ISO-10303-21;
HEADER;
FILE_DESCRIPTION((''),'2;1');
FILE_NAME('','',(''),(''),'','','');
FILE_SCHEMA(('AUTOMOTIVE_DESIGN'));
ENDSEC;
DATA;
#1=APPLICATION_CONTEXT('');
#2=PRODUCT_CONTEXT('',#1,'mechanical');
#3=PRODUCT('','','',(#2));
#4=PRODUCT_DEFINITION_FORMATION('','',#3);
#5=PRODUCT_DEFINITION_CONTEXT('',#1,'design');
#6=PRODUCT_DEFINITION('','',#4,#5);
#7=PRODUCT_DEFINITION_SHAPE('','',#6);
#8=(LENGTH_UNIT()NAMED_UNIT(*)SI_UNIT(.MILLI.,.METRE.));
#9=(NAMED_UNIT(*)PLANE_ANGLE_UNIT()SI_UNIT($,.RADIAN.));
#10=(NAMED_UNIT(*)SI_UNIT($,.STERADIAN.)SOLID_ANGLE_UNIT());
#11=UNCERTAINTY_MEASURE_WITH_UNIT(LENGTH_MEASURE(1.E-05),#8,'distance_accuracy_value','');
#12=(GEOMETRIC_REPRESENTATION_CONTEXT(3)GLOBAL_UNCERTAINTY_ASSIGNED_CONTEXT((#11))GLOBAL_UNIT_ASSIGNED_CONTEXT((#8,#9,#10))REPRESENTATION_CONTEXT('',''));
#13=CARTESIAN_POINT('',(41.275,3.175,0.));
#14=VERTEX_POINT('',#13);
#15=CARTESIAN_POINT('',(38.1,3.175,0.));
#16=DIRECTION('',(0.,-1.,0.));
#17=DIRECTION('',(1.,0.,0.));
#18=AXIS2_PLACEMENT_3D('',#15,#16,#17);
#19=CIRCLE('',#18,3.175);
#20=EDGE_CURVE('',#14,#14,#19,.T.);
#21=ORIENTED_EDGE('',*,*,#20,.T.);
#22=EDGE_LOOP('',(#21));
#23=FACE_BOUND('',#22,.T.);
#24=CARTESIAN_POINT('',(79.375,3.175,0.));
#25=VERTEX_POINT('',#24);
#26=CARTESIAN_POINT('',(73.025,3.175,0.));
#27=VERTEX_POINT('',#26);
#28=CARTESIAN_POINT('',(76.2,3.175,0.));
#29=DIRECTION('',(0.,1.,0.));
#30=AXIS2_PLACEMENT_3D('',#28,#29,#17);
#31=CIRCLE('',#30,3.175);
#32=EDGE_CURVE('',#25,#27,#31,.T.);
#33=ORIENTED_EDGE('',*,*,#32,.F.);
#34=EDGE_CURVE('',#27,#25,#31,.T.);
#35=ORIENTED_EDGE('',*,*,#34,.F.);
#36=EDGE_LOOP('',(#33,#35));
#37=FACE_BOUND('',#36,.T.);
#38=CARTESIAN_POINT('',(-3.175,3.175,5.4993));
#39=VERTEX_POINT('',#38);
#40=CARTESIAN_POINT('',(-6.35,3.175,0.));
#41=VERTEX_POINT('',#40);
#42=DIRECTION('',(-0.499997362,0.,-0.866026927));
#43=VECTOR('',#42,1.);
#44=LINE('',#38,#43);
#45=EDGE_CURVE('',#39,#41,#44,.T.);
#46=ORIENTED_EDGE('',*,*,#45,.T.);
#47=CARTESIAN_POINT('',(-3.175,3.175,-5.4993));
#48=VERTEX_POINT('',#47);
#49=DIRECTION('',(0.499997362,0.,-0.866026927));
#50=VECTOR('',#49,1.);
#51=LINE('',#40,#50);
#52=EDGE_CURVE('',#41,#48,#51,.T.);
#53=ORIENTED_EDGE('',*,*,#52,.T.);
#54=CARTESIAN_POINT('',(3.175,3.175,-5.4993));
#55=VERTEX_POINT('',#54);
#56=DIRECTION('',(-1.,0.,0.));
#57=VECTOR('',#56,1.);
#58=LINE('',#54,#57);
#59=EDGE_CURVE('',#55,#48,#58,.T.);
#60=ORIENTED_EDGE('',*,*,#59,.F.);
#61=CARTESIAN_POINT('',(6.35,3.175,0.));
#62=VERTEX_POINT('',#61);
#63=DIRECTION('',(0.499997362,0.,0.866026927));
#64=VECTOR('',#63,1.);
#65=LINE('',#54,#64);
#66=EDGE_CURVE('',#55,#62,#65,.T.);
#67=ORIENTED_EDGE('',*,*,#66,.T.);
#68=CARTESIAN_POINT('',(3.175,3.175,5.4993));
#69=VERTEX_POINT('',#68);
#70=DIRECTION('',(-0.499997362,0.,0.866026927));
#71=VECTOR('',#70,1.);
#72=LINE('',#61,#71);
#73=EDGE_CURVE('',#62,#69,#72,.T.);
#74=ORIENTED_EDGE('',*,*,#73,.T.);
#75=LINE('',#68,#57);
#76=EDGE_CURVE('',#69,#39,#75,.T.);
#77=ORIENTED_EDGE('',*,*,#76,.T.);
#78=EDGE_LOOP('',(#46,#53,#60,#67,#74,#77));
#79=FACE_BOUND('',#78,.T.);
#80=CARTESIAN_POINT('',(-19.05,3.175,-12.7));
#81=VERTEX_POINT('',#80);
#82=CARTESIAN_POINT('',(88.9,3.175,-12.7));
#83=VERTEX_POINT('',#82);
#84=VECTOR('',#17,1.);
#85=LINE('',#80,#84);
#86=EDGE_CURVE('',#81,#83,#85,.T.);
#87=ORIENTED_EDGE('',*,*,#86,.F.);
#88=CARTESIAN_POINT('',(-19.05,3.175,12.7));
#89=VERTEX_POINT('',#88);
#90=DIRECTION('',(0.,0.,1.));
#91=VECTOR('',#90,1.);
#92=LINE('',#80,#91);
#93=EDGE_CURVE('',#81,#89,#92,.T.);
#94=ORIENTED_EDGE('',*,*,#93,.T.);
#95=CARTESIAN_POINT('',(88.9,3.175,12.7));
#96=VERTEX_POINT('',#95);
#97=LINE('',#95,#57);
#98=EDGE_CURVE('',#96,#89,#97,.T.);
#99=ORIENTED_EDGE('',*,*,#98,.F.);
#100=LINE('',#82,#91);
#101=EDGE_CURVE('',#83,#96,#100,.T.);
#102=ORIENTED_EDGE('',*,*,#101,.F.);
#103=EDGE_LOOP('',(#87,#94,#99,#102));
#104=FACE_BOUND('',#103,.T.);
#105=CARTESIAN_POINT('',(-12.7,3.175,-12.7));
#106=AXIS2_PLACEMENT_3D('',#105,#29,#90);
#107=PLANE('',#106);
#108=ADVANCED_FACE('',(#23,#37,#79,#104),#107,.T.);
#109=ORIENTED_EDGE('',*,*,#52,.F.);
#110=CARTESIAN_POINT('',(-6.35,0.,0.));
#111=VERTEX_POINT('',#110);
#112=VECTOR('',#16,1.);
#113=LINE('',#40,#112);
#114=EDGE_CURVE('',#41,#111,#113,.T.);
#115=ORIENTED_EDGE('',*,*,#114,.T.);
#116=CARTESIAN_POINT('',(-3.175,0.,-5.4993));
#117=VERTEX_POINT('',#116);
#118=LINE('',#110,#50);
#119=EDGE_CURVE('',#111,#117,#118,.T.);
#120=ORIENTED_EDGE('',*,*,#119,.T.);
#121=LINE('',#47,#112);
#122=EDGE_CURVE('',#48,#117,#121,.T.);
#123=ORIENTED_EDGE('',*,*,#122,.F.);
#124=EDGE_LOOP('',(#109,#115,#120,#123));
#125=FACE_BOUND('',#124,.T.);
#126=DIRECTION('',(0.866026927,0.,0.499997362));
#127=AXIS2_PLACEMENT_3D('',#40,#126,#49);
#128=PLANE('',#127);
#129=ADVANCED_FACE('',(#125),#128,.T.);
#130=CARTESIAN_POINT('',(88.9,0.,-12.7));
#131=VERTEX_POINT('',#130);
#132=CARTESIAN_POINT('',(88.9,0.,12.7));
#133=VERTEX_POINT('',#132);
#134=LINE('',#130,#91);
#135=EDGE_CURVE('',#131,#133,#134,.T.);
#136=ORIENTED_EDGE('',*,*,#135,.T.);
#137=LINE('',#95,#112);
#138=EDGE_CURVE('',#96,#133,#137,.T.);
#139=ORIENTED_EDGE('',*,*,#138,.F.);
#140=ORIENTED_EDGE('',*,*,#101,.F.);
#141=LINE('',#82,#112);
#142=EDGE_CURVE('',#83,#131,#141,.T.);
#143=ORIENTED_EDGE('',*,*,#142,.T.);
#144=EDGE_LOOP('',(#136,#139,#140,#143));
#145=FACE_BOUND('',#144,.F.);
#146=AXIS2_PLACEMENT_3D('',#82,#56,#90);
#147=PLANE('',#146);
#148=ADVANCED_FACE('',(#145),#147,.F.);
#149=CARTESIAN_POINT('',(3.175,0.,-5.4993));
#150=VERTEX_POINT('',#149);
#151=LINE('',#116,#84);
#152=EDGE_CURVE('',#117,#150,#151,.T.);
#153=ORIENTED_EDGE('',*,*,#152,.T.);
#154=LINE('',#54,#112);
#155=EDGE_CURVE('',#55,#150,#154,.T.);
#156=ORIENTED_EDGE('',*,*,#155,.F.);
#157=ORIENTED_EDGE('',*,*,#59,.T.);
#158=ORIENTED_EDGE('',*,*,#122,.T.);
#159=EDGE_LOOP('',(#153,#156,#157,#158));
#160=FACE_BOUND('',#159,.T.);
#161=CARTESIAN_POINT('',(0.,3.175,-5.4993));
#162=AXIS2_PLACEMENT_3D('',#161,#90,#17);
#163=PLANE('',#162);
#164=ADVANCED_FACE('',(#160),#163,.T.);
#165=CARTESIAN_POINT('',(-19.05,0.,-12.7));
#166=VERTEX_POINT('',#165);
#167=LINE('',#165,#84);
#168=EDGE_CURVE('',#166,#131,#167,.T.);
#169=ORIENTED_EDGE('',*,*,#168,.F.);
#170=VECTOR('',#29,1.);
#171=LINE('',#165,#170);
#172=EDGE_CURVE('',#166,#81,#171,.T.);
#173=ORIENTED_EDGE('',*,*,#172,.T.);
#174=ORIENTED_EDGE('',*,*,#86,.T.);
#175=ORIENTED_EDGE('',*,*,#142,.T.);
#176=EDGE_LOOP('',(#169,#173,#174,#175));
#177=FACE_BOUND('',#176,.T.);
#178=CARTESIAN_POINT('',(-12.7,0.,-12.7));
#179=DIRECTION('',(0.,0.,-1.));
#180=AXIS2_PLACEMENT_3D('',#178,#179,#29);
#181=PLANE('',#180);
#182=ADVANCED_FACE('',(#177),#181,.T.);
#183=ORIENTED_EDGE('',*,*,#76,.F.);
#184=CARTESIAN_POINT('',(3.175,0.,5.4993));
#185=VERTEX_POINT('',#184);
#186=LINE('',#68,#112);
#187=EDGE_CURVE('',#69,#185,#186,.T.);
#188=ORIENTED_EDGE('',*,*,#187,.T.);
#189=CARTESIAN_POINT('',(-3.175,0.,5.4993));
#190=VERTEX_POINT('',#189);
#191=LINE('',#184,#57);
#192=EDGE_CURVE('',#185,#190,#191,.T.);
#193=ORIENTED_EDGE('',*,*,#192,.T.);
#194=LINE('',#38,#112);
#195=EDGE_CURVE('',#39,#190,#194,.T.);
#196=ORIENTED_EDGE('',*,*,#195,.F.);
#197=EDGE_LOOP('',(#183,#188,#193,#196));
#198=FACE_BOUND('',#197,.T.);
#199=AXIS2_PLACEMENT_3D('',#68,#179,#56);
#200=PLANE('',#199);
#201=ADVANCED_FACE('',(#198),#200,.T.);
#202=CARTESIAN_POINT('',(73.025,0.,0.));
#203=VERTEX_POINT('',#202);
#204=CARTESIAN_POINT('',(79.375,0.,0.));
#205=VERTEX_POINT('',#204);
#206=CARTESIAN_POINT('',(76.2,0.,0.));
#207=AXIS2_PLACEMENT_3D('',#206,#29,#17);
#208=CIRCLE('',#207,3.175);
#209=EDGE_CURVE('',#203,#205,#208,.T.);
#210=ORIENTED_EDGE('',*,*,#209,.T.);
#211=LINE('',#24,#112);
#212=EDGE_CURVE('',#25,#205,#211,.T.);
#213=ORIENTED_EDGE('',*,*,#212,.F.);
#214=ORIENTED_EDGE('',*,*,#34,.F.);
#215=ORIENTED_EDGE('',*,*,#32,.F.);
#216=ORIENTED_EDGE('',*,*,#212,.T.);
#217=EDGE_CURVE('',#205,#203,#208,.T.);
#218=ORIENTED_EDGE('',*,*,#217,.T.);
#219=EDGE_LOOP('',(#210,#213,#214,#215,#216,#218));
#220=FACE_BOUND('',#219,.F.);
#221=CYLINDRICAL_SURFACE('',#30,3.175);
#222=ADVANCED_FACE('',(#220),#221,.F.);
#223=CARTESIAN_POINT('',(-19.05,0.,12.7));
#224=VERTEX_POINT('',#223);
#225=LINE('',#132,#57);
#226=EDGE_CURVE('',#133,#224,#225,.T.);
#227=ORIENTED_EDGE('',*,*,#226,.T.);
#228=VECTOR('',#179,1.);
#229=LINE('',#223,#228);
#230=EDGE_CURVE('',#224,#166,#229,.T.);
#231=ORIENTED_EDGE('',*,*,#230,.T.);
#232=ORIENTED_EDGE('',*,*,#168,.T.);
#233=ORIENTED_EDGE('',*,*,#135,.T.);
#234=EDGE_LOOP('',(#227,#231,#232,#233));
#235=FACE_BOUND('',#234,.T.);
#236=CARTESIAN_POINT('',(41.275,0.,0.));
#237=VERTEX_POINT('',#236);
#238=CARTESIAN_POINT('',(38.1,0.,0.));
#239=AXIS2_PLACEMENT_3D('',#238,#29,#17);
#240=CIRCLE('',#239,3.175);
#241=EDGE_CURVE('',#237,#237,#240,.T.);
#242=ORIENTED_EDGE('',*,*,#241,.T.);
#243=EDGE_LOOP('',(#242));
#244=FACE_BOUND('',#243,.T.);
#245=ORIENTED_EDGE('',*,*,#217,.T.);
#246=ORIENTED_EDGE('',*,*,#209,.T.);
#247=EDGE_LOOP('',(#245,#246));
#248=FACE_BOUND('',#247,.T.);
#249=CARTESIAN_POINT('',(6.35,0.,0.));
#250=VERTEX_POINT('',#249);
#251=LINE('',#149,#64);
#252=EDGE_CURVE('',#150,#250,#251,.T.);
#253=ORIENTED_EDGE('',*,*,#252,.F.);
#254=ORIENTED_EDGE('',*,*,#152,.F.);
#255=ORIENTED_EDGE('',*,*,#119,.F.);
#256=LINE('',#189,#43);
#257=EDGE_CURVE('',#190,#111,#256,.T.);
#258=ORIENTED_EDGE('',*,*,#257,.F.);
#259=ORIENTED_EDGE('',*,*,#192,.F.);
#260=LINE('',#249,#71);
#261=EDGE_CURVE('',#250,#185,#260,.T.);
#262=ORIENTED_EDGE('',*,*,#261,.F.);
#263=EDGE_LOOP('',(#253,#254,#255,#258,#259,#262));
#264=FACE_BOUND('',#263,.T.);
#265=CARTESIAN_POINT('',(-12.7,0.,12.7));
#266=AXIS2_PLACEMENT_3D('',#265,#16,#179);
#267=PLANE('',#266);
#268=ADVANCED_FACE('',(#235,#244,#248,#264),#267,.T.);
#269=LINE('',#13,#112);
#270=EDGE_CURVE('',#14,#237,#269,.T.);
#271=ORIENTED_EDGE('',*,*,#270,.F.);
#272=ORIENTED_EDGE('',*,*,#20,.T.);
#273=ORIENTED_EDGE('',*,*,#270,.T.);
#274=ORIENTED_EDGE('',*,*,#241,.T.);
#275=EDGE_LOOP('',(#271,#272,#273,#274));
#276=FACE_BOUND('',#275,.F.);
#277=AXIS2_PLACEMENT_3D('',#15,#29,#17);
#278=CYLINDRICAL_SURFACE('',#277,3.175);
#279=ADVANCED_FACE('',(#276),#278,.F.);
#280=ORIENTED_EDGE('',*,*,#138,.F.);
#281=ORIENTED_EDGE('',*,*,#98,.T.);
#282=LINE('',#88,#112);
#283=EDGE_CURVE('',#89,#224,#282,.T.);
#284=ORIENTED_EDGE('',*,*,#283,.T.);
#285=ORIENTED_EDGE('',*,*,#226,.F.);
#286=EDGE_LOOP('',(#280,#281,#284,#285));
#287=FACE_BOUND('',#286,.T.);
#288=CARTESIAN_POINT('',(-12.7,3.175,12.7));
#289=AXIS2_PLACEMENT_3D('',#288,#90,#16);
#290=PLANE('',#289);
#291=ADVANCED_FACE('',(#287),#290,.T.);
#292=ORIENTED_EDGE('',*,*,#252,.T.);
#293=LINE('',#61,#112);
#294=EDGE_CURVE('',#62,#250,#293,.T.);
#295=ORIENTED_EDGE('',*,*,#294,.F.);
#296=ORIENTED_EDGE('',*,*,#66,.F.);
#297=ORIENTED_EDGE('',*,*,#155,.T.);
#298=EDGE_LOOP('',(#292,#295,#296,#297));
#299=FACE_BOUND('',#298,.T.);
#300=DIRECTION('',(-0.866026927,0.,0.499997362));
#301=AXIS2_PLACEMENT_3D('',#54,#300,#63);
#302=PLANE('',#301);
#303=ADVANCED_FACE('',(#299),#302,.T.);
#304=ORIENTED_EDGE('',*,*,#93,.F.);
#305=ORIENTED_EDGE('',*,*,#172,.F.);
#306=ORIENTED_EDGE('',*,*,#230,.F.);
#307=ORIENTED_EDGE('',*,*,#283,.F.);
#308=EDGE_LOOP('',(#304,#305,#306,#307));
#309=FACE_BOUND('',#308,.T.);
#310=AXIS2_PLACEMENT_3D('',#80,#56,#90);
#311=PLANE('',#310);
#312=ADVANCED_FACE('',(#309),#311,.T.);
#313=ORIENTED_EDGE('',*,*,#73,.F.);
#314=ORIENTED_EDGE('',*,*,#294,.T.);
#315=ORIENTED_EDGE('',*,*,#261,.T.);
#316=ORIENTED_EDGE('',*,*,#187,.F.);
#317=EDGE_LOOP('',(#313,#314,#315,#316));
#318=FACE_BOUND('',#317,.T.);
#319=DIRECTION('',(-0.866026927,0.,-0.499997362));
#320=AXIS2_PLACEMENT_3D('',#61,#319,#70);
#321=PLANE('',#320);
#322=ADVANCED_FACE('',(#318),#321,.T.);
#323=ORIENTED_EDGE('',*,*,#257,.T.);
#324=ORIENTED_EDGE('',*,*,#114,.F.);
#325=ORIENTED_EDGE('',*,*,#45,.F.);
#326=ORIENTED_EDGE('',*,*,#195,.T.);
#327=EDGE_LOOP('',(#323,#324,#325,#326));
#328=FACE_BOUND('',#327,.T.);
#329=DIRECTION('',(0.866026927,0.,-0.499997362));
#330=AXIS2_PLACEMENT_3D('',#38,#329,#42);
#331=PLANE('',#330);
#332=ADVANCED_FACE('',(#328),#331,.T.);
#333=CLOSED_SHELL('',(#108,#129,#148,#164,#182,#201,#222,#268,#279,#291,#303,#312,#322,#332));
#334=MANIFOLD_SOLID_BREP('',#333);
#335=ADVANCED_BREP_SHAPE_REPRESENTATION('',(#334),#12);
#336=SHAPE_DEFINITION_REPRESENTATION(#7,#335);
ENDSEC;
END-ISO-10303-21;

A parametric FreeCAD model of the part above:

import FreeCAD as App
import Part
import Sketcher
from FreeCAD import Vector
Q = App.Units.Quantity


def add_polygon(sketch, points):
    """Adds a closed chain of lines whose ends are joined by coincident constraints."""
    first, n = sketch.GeometryCount, len(points)
    for a, b in zip(points, points[1:] + points[:1]):
        sketch.addGeometry(Part.LineSegment(App.Vector(*a, 0), App.Vector(*b, 0)), False)
    for i in range(n):
        sketch.addConstraint(Sketcher.Constraint("Coincident", first + i, 2, first + (i + 1) % n, 1))

doc = App.newDocument("Part")
params = doc.addObject("Spreadsheet::Sheet", "Params")
for row, (alias, value) in enumerate([
    ("sketch1_width", "4 in"),
    ("sketch1_height", "1 in"),
    ("pad1_length", "0.125 in"),
    ("sketch2_width", "0.25 in"),
    ("pocket1_length", "0.125 in"),
    ("sketch3_diameter", "0.25 in"),
    ("pocket2_length", "0.125 in"),
    ("sketch4_height", "1 in"),
    ("sketch4_width", "1.5 in"),
    ("sketch4_diameter", "0.25 in"),
    ("pocket3_length", "1 in"),
    ("sketch5_diameter", "0.25 in"),
    ("sketch5_height", "1 in"),
    ("sketch5_width", "1.5 in"),
    ("pad2_length", "0.125 in"),
    ("sketch6_height", "1 in"),
    ("sketch6_width", "0.125 in"),
    ("pad3_length", "0.25 in"),
], start=1):
    params.set(f"A{row}", alias)
    params.set(f"B{row}", "=" + value)
    params.setAlias(f"B{row}", alias)

body = doc.addObject("PartDesign::Body", "Body")

# Sketch on XZ plane
sketch1 = doc.addObject("Sketcher::SketchObject", "Sketch")
body.addObject(sketch1)
sketch1.AttachmentSupport = (doc.XZ_Plane, [""])
sketch1.MapMode = "FlatFace"
add_polygon(sketch1, [(-51, -13), (-51, 13), (51, 13), (51, -13)])  # lines 0-3
sketch1.addConstraint([
    Sketcher.Constraint("Vertical", 0),
    Sketcher.Constraint("Horizontal", 1),
    Sketcher.Constraint("Vertical", 2),
    Sketcher.Constraint("Horizontal", 3),
    Sketcher.Constraint("Symmetric", 0, 2, 2, 2, -1, 1),
    Sketcher.Constraint("DistanceX", 1, 1, 1, 2, Q("4 in")),
    Sketcher.Constraint("DistanceY", 0, 1, 0, 2, Q("1 in")),
])
sketch1.setExpression("Constraints[9]", "Params.sketch1_width")
sketch1.setExpression("Constraints[10]", "Params.sketch1_height")
pad1 = doc.addObject("PartDesign::Pad", "Pad")
body.addObject(pad1)
pad1.Profile = sketch1
pad1.setExpression("Length", "Params.pad1_length")
pad1.Reversed = True

# Sketch on XZ plane
sketch2 = doc.addObject("Sketcher::SketchObject", "Sketch001")
body.addObject(sketch2)
sketch2.AttachmentSupport = (doc.XZ_Plane, [""])
sketch2.MapMode = "FlatFace"
sketch2.AttachmentOffset = App.Placement(Vector(0, 0, -0.125 * 25.4), App.Rotation())
add_polygon(sketch2, [(3, 5), (6, 0), (3, -5), (-3, -5), (-6, 0), (-3, 5)])  # lines 0-5
sketch2.addConstraint([
    Sketcher.Constraint("Horizontal", 2),
    Sketcher.Constraint("Horizontal", 5),
    Sketcher.Constraint("Symmetric", 0, 2, 3, 2, -1, 1),
    Sketcher.Constraint("Symmetric", 1, 2, 4, 2, -1, 1),
    Sketcher.Constraint("PointOnObject", 0, 2, -1),
    Sketcher.Constraint("Parallel", 0, 3),
    Sketcher.Constraint("Vertical", 2, 2, 4, 2),
    Sketcher.Constraint("DistanceX", 3, 2, 0, 2, Q("0.5 in")),
    Sketcher.Constraint("Angle", 0, Q("-60.0002 deg")),
    Sketcher.Constraint("DistanceX", 2, 2, 2, 1, Q("0.25 in")),
])
sketch2.setExpression("Constraints[15]", "Params.sketch2_width")
pocket1 = doc.addObject("PartDesign::Pocket", "Pocket")
body.addObject(pocket1)
pocket1.Profile = sketch2
pocket1.setExpression("Length", "Params.pocket1_length")
pocket1.Reversed = True

# Sketch on XZ plane
sketch3 = doc.addObject("Sketcher::SketchObject", "Sketch002")
body.addObject(sketch3)
sketch3.AttachmentSupport = (doc.XZ_Plane, [""])
sketch3.MapMode = "FlatFace"
sketch3.AttachmentOffset = App.Placement(Vector(0, 0, -0.125 * 25.4), App.Rotation())
sketch3.addGeometry([
    Part.Circle(Vector(-38.1, 0, 0), Vector(0, 0, 1), 3.2),
    Part.Circle(Vector(38.1, 0, 0), Vector(0, 0, 1), 3.2),
], False)
sketch3.addConstraint([
    Sketcher.Constraint("Equal", 0, 1),
    Sketcher.Constraint("Symmetric", 0, 3, 1, 3, -1, 1),
    Sketcher.Constraint("PointOnObject", 0, 3, -1),
    Sketcher.Constraint("Diameter", 0, Q("0.25 in")),
    Sketcher.Constraint("DistanceX", 0, 3, 1, 3, Q("3 in")),
])
sketch3.setExpression("Constraints[3]", "Params.sketch3_diameter")
pocket2 = doc.addObject("PartDesign::Pocket", "Pocket001")
body.addObject(pocket2)
pocket2.Profile = sketch3
pocket2.setExpression("Length", "Params.pocket2_length")
pocket2.Reversed = True

# Sketch on XZ plane
sketch4 = doc.addObject("Sketcher::SketchObject", "Sketch003")
body.addObject(sketch4)
sketch4.AttachmentSupport = (doc.XZ_Plane, [""])
sketch4.MapMode = "FlatFace"
sketch4.AttachmentOffset = App.Placement(Vector(0, 0, -0.125 * 25.4), App.Rotation())
add_polygon(sketch4, [(-12.7, -12.7), (-50.8, -12.7), (-50.8, 12.7), (-12.7, 12.7)])  # lines 0-3
sketch4.addGeometry(Part.Circle(Vector(-38.1, 0, 0), Vector(0, 0, 1), 3.2), False)  # 4
sketch4.addConstraint([
    Sketcher.Constraint("Horizontal", 0),
    Sketcher.Constraint("Vertical", 1),
    Sketcher.Constraint("Horizontal", 2),
    Sketcher.Constraint("Vertical", 3),
    Sketcher.Constraint("PointOnObject", 4, 3, -1),
    Sketcher.Constraint("DistanceY", 1, 1, 1, 2, Q("1 in")),
    Sketcher.Constraint("DistanceX", 0, 2, 0, 1, Q("1.5 in")),
    Sketcher.Constraint("DistanceX", 4, 3, 2, 2, Q("1 in")),
    Sketcher.Constraint("DistanceX", 4, 3, -1, 1, Q("1.5 in")),
    Sketcher.Constraint("Diameter", 4, Q("0.25 in")),
    Sketcher.Constraint("DistanceY", 0, 2, -1, 1, Q("0.5 in")),
])
sketch4.setExpression("Constraints[9]", "Params.sketch4_height")
sketch4.setExpression("Constraints[10]", "Params.sketch4_width")
sketch4.setExpression("Constraints[13]", "Params.sketch4_diameter")
pocket3 = doc.addObject("PartDesign::Pocket", "Pocket002")
body.addObject(pocket3)
pocket3.Profile = sketch4
pocket3.setExpression("Length", "Params.pocket3_length")
pocket3.Reversed = True

# Sketch on XZ plane
sketch5 = doc.addObject("Sketcher::SketchObject", "Sketch004")
body.addObject(sketch5)
sketch5.AttachmentSupport = (doc.XZ_Plane, [""])
sketch5.MapMode = "FlatFace"
sketch5.AttachmentOffset = App.Placement(Vector(0, 0, -0.125 * 25.4), App.Rotation())
add_polygon(sketch5, [(50.8, -12.7), (50.8, 0), (50.8, 12.7), (88.9, 12.7), (88.9, -12.7)])  # lines 0-4
sketch5.addGeometry(Part.Circle(Vector(76.2, 0, 0), Vector(0, 0, 1), 3.2), False)  # 5
sketch5.addConstraint([
    Sketcher.Constraint("Vertical", 0),
    Sketcher.Constraint("Vertical", 1),
    Sketcher.Constraint("Horizontal", 2),
    Sketcher.Constraint("Vertical", 3),
    Sketcher.Constraint("Horizontal", 4),
    Sketcher.Constraint("PointOnObject", 5, 3, -1),
    Sketcher.Constraint("PointOnObject", 0, 2, -1),
    Sketcher.Constraint("Equal", 0, 1),
    Sketcher.Constraint("Diameter", 5, Q("0.25 in")),
    Sketcher.Constraint("DistanceY", 3, 2, 3, 1, Q("1 in")),
    Sketcher.Constraint("DistanceX", 2, 1, 2, 2, Q("1.5 in")),
    Sketcher.Constraint("DistanceX", 0, 2, 5, 3, Q("1 in")),
    Sketcher.Constraint("DistanceX", -1, 1, 5, 3, Q("3 in")),
])
sketch5.setExpression("Constraints[13]", "Params.sketch5_diameter")
sketch5.setExpression("Constraints[14]", "Params.sketch5_height")
sketch5.setExpression("Constraints[15]", "Params.sketch5_width")
pad2 = doc.addObject("PartDesign::Pad", "Pad001")
body.addObject(pad2)
pad2.Profile = sketch5
pad2.setExpression("Length", "Params.pad2_length")

# Sketch on YZ plane
sketch6 = doc.addObject("Sketcher::SketchObject", "Sketch005")
body.addObject(sketch6)
sketch6.AttachmentSupport = (doc.YZ_Plane, [""])
sketch6.MapMode = "FlatFace"
sketch6.AttachmentOffset = App.Placement(Vector(0, 0, -0.5 * 25.4), App.Rotation())
add_polygon(sketch6, [(0, -12.7), (0, 12.7), (3.2, 12.7), (3.2, -12.7)])  # lines 0-3
sketch6.addConstraint([
    Sketcher.Constraint("Vertical", 0),
    Sketcher.Constraint("Horizontal", 1),
    Sketcher.Constraint("Vertical", 2),
    Sketcher.Constraint("Horizontal", 3),
    Sketcher.Constraint("Symmetric", 0, 2, 3, 2, -1, 1),
    Sketcher.Constraint("DistanceY", 0, 1, 0, 2, Q("1 in")),
    Sketcher.Constraint("DistanceX", 1, 1, 1, 2, Q("0.125 in")),
])
sketch6.setExpression("Constraints[9]", "Params.sketch6_height")
sketch6.setExpression("Constraints[10]", "Params.sketch6_width")
pad3 = doc.addObject("PartDesign::Pad", "Pad002")
body.addObject(pad3)
pad3.Profile = sketch6
pad3.setExpression("Length", "Params.pad3_length")
pad3.Reversed = True

doc.recompute()
